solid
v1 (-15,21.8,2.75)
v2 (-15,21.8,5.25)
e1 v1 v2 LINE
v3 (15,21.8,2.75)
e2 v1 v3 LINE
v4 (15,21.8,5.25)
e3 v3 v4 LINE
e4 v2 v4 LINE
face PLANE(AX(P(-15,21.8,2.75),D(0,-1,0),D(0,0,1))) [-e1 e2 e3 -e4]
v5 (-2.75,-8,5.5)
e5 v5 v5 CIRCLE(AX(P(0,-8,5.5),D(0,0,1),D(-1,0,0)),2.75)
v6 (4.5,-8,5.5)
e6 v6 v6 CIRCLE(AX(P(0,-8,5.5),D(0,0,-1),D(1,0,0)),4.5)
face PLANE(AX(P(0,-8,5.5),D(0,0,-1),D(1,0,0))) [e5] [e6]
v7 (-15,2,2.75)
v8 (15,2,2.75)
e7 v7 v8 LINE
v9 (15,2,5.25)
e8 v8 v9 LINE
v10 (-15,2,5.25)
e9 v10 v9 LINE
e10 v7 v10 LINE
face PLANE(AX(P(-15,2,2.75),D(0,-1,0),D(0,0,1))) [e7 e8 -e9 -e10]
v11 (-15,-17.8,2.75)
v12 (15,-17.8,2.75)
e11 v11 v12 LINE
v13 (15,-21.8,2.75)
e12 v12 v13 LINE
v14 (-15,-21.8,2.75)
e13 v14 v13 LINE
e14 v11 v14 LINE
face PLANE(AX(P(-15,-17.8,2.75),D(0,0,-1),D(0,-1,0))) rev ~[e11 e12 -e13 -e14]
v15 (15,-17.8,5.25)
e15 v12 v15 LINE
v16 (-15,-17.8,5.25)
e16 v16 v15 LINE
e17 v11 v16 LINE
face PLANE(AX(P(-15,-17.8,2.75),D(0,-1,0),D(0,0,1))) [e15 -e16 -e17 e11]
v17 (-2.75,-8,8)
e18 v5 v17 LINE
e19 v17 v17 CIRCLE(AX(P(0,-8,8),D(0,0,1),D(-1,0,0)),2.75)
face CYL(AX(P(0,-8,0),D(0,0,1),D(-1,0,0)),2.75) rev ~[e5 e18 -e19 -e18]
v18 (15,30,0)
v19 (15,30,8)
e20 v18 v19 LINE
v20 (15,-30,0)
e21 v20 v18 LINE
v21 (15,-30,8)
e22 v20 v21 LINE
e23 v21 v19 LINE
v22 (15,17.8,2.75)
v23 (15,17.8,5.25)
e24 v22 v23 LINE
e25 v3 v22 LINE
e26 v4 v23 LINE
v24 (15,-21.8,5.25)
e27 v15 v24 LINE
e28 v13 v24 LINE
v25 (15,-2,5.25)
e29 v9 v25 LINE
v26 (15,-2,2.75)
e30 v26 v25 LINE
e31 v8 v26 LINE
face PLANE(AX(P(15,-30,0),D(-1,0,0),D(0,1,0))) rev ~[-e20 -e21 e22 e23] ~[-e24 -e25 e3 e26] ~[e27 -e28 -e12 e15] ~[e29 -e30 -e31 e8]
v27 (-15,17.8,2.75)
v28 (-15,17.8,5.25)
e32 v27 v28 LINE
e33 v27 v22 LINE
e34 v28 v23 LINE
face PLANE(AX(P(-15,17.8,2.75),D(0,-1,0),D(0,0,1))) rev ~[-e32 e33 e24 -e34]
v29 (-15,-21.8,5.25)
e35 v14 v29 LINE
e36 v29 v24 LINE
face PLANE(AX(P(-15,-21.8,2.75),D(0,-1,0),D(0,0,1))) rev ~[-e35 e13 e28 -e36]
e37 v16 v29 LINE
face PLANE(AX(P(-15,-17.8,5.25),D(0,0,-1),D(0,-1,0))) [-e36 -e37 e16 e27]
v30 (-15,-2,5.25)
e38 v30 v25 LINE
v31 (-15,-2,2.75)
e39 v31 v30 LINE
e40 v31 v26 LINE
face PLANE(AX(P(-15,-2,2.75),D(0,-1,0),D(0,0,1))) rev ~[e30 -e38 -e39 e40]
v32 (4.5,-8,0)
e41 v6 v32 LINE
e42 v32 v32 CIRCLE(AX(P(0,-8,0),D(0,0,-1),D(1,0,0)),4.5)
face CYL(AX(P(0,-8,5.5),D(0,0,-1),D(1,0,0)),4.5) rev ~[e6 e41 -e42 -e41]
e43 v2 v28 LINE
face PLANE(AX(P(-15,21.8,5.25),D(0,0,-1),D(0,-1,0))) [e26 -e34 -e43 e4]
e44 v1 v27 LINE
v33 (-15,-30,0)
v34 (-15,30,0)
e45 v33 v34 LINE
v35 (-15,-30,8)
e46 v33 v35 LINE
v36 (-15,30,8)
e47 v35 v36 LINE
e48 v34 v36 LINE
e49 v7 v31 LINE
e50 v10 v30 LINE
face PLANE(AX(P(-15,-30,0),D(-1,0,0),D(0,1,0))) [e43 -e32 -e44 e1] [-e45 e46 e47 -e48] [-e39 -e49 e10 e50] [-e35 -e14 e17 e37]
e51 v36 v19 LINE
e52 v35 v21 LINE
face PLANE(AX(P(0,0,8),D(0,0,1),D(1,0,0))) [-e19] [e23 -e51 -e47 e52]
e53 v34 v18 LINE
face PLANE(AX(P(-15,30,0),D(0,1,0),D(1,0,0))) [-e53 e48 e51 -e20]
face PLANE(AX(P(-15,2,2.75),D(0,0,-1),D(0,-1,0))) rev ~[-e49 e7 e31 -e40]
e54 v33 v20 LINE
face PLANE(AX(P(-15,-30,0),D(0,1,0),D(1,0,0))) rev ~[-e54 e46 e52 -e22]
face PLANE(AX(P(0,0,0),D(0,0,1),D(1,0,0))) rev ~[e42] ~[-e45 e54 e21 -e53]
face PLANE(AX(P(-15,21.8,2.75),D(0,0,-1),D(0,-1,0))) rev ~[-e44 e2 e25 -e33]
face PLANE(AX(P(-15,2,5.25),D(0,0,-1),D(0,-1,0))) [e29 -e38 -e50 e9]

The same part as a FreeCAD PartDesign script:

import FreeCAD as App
import Part
import Sketcher

V = App.Vector

doc = App.newDocument("Part")
body = doc.addObject("PartDesign::Body", "Body")

# Sketch on XY plane
sketch1 = body.newObject("Sketcher::SketchObject", "Sketch")
sketch1.AttachmentSupport = (doc.getObject("XY_Plane"), [""])
sketch1.MapMode = "FlatFace"
sketch1.addGeometry(Part.LineSegment(V(-15, 30, 0), V(-15, -30, 0)), False)
sketch1.addGeometry(Part.LineSegment(V(-15, -30, 0), V(15, -30, 0)), False)
sketch1.addGeometry(Part.LineSegment(V(15, -30, 0), V(15, 30, 0)), False)
sketch1.addGeometry(Part.LineSegment(V(15, 30, 0), V(-15, 30, 0)), False)
sketch1.addConstraint(Sketcher.Constraint("Coincident", 0, 2, 1, 1))
sketch1.addConstraint(Sketcher.Constraint("Coincident", 1, 2, 2, 1))
sketch1.addConstraint(Sketcher.Constraint("Coincident", 2, 2, 3, 1))
sketch1.addConstraint(Sketcher.Constraint("Coincident", 3, 2, 0, 1))
sketch1.addConstraint(Sketcher.Constraint("Vertical", 0))
sketch1.addConstraint(Sketcher.Constraint("Horizontal", 1))
sketch1.addConstraint(Sketcher.Constraint("Vertical", 2))
sketch1.addConstraint(Sketcher.Constraint("Horizontal", 3))
sketch1.addConstraint(Sketcher.Constraint("Symmetric", 0, 2, 2, 2, -1, 1))
sketch1.addConstraint(Sketcher.Constraint("DistanceX", 1, 1, 1, 2, 30.0))
sketch1.addConstraint(Sketcher.Constraint("DistanceY", 0, 2, 0, 1, 60.0))
pad1 = body.newObject("PartDesign::Pad", "Pad")
pad1.Profile = sketch1
pad1.Length = 8

# Sketch on XY plane
sketch2 = body.newObject("Sketcher::SketchObject", "Sketch001")
sketch2.AttachmentSupport = (doc.getObject("XY_Plane"), [""])
sketch2.MapMode = "FlatFace"
sketch2.addGeometry(Part.Circle(V(0, -8, 0), V(0, 0, 1), 2.8), False)
sketch2.addConstraint(Sketcher.Constraint("PointOnObject", 0, 3, -2))
sketch2.addConstraint(Sketcher.Constraint("Diameter", 0, 5.5))
sketch2.addConstraint(Sketcher.Constraint("DistanceY", 0, 3, -1, 1, 8.0))
doc.recompute()
hole = body.newObject("PartDesign::Hole", "Hole")
hole.Profile = sketch2
hole.ThreadType = "None"
hole.Diameter = 5.5
hole.DepthType = "Dimension"
hole.Depth = 30
hole.DrillPoint = "Angled"
hole.DrillPointAngle = 118
hole.HoleCutType = "Counterbore"
hole.HoleCutDiameter = 9
hole.HoleCutDepth = 5.5
hole.Reversed = True

# Sketch on YZ plane
sketch3 = body.newObject("Sketcher::SketchObject", "Sketch002")
sketch3.AttachmentSupport = (doc.getObject("YZ_Plane"), [""])
sketch3.MapMode = "FlatFace"
sketch3.AttachmentOffset = App.Placement(V(0, 0, -15), App.Rotation())
sketch3.addGeometry(Part.LineSegment(V(21.8, 5.2, 0), V(21.8, 2.8, 0)), False)
sketch3.addGeometry(Part.LineSegment(V(21.8, 2.8, 0), V(17.8, 2.8, 0)), False)
sketch3.addGeometry(Part.LineSegment(V(17.8, 2.8, 0), V(17.8, 5.2, 0)), False)
sketch3.addGeometry(Part.LineSegment(V(17.8, 5.2, 0), V(21.8, 5.2, 0)), False)
sketch3.addGeometry(Part.LineSegment(V(2, 5.2, 0), V(2, 2.8, 0)), False)
sketch3.addGeometry(Part.LineSegment(V(2, 2.8, 0), V(-2, 2.8, 0)), False)
sketch3.addGeometry(Part.LineSegment(V(-2, 2.8, 0), V(-2, 5.2, 0)), False)
sketch3.addGeometry(Part.LineSegment(V(-2, 5.2, 0), V(2, 5.2, 0)), False)
sketch3.addGeometry(Part.LineSegment(V(-17.8, 5.2, 0), V(-17.8, 2.8, 0)), False)
sketch3.addGeometry(Part.LineSegment(V(-17.8, 2.8, 0), V(-21.8, 2.8, 0)), False)
sketch3.addGeometry(Part.LineSegment(V(-21.8, 2.8, 0), V(-21.8, 5.2, 0)), False)
sketch3.addGeometry(Part.LineSegment(V(-21.8, 5.2, 0), V(-17.8, 5.2, 0)), False)
sketch3.addConstraint(Sketcher.Constraint("Coincident", 0, 2, 1, 1))
sketch3.addConstraint(Sketcher.Constraint("Coincident", 1, 2, 2, 1))
sketch3.addConstraint(Sketcher.Constraint("Coincident", 2, 2, 3, 1))
sketch3.addConstraint(Sketcher.Constraint("Coincident", 3, 2, 0, 1))
sketch3.addConstraint(Sketcher.Constraint("Coincident", 4, 2, 5, 1))
sketch3.addConstraint(Sketcher.Constraint("Coincident", 5, 2, 6, 1))
sketch3.addConstraint(Sketcher.Constraint("Coincident", 6, 2, 7, 1))
sketch3.addConstraint(Sketcher.Constraint("Coincident", 7, 2, 4, 1))
sketch3.addConstraint(Sketcher.Constraint("Coincident", 8, 2, 9, 1))
sketch3.addConstraint(Sketcher.Constraint("Coincident", 9, 2, 10, 1))
sketch3.addConstraint(Sketcher.Constraint("Coincident", 10, 2, 11, 1))
sketch3.addConstraint(Sketcher.Constraint("Coincident", 11, 2, 8, 1))
sketch3.addConstraint(Sketcher.Constraint("Vertical", 0))
sketch3.addConstraint(Sketcher.Constraint("Horizontal", 1))
sketch3.addConstraint(Sketcher.Constraint("Vertical", 2))
sketch3.addConstraint(Sketcher.Constraint("Horizontal", 3))
sketch3.addConstraint(Sketcher.Constraint("Vertical", 4))
sketch3.addConstraint(Sketcher.Constraint("Horizontal", 5))
sketch3.addConstraint(Sketcher.Constraint("Vertical", 6))
sketch3.addConstraint(Sketcher.Constraint("Horizontal", 7))
sketch3.addConstraint(Sketcher.Constraint("Vertical", 8))
sketch3.addConstraint(Sketcher.Constraint("Horizontal", 9))
sketch3.addConstraint(Sketcher.Constraint("Vertical", 10))
sketch3.addConstraint(Sketcher.Constraint("Horizontal", 11))
sketch3.addConstraint(Sketcher.Constraint("Symmetric", 1, 2, 8, 2, -2))
sketch3.addConstraint(Sketcher.Constraint("Symmetric", 3, 2, 10, 2, -2))
sketch3.addConstraint(Sketcher.Constraint("Horizontal", 1, 2, 4, 2))
sketch3.addConstraint(Sketcher.Constraint("Horizontal", 3, 2, 6, 2))
sketch3.addConstraint(Sketcher.Constraint("Equal", 3, 5))
sketch3.addConstraint(Sketcher.Constraint("DistanceX", 1, 2, 1, 1, 4.0))
sketch3.addConstraint(Sketcher.Constraint("DistanceY", 0, 2, 0, 1, 2.5))
sketch3.addConstraint(Sketcher.Constraint("DistanceX", -1, 1, 4, 2, 2.0))
sketch3.addConstraint(Sketcher.Constraint("DistanceX", -1, 1, 0, 2, 21.8))
sketch3.addConstraint(Sketcher.Constraint("DistanceY", -1, 1, 0, 2, 2.75))
pocket1 = body.newObject("PartDesign::Pocket", "Pocket")
pocket1.Profile = sketch3
pocket1.Type = "ThroughAll"
pocket1.Reversed = True

doc.recompute()
